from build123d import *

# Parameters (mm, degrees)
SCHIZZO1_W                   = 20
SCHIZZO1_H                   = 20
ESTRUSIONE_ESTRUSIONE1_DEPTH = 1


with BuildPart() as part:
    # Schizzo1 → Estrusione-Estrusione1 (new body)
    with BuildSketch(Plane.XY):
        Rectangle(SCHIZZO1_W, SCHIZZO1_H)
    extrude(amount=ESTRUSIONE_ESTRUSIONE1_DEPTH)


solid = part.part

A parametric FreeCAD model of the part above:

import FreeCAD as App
import Part
import Sketcher

V = App.Vector


def add_polygon(sketch, points):
    """Adds a closed chain of lines whose ends are joined by coincident constraints."""
    first, n = sketch.GeometryCount, len(points)
    for a, b in zip(points, points[1:] + points[:1]):
        sketch.addGeometry(Part.LineSegment(App.Vector(*a, 0), App.Vector(*b, 0)), False)
    for i in range(n):
        sketch.addConstraint(Sketcher.Constraint("Coincident", first + i, 2, first + (i + 1) % n, 1))

doc = App.newDocument("Part")
body = doc.addObject("PartDesign::Body", "Body")

# Sketch on XY plane
sketch1 = doc.addObject("Sketcher::SketchObject", "Sketch")
body.addObject(sketch1)
sketch1.AttachmentSupport = (doc.XY_Plane, [""])
sketch1.MapMode = "FlatFace"
add_polygon(sketch1, [(-10, 10), (-10, -10), (10, -10), (10, 10)])  # lines 0-3
sketch1.addConstraint([
    Sketcher.Constraint("Vertical", 0),
    Sketcher.Constraint("Horizontal", 1),
    Sketcher.Constraint("Vertical", 2),
    Sketcher.Constraint("Horizontal", 3),
    Sketcher.Constraint("Symmetric", 0, 2, 2, 2, -1, 1),
    Sketcher.Constraint("Equal", 3, 0),
    Sketcher.Constraint("DistanceX", 1, 1, 1, 2, 20.0),
])
pad1 = doc.addObject("PartDesign::Pad", "Pad")
body.addObject(pad1)
pad1.Profile = sketch1
pad1.Length = 1

doc.recompute()
